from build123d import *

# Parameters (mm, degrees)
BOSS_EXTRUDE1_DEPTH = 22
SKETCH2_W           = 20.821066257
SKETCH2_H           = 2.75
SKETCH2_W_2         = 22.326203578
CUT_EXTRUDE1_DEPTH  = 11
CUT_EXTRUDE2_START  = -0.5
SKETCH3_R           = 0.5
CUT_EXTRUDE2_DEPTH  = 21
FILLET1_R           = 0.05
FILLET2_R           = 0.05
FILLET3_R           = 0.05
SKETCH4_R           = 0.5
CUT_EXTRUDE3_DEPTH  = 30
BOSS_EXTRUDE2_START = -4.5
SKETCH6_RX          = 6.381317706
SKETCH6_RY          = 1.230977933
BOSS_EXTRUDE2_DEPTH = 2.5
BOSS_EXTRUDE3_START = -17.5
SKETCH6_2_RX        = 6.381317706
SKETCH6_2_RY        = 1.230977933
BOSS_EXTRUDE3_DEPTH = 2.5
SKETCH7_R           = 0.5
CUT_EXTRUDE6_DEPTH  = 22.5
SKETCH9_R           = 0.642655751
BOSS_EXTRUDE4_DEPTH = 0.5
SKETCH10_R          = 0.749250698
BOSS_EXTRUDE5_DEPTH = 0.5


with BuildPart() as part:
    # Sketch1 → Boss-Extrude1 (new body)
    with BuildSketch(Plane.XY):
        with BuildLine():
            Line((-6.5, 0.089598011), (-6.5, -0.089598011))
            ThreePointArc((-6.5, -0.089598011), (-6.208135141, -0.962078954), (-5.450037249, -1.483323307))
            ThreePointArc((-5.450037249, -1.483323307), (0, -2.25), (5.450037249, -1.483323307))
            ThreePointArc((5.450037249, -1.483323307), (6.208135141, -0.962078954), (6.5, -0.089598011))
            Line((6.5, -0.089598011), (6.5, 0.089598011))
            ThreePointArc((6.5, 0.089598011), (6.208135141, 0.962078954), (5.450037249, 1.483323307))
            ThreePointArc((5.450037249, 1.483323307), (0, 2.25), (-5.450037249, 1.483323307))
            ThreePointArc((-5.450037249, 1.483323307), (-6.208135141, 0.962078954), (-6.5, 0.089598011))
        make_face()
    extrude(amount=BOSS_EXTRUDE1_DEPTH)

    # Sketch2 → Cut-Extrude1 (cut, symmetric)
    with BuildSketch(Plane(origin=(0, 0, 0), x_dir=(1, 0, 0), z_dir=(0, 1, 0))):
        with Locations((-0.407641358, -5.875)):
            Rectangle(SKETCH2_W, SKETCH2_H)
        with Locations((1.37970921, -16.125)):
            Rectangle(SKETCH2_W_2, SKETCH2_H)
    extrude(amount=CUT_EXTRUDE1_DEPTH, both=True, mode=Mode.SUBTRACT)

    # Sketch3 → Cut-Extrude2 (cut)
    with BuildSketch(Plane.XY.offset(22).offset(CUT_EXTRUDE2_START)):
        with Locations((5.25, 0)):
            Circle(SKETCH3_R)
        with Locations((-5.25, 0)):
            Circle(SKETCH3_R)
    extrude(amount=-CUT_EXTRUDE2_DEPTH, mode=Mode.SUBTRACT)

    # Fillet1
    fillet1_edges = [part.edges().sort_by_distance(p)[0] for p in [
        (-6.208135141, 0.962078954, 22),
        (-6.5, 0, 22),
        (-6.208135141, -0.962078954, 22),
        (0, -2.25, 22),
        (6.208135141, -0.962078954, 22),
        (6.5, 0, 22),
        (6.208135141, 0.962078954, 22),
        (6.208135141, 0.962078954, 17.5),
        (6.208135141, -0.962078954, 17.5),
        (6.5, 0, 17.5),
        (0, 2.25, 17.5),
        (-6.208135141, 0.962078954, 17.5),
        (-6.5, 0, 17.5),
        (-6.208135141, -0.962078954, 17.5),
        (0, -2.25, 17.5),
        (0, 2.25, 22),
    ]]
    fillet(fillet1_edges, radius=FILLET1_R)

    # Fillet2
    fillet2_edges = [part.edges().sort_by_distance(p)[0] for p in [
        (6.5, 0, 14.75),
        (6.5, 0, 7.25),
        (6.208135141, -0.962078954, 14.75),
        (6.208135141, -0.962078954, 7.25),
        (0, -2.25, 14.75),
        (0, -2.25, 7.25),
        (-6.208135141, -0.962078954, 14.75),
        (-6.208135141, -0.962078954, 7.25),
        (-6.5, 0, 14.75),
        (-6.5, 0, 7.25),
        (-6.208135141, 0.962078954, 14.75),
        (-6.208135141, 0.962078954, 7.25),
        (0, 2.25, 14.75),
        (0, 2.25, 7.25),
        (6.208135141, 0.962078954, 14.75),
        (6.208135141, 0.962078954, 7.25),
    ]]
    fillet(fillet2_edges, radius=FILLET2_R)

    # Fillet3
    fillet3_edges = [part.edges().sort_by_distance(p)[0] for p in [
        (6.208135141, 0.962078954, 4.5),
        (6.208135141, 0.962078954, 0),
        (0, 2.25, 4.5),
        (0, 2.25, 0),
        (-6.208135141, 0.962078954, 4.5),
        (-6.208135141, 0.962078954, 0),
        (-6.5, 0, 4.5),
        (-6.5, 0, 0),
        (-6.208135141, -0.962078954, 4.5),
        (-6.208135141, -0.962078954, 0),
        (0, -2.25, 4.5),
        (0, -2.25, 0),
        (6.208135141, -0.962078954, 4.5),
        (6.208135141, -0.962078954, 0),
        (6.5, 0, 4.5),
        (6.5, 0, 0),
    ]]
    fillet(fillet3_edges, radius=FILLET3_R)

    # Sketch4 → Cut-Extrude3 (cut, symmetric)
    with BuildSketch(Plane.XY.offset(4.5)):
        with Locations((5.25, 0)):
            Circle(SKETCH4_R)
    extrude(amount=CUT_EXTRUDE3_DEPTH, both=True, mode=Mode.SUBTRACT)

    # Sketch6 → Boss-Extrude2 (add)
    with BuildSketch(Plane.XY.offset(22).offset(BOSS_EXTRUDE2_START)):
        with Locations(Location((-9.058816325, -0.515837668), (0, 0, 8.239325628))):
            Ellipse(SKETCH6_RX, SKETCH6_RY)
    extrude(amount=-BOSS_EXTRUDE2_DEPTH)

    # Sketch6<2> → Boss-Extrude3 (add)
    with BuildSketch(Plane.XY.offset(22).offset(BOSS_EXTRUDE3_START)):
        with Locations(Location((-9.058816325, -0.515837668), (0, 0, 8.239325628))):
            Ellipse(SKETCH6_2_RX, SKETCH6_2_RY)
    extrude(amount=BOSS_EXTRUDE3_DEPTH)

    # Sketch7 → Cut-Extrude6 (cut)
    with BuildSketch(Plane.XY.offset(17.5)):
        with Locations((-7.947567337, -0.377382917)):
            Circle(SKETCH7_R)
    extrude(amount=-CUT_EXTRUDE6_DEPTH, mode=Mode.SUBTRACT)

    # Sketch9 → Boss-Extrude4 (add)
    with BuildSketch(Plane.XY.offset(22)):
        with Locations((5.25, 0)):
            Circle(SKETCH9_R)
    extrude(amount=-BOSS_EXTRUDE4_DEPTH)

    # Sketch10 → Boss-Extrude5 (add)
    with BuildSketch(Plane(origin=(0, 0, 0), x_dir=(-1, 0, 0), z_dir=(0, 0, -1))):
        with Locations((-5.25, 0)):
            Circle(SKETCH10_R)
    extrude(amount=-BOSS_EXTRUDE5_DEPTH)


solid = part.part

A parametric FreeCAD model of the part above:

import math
import FreeCAD as App
import Part
import Sketcher

V = App.Vector
Q = App.Units.Quantity


def edges_at(feature, points):
    """Names of the edges that pass closest to the given points."""
    edges = feature.Shape.Edges
    near = lambda p: min(range(len(edges)), key=lambda i: edges[i].distToShape(Part.Vertex(*p))[0])
    return sorted({f"Edge{near(p) + 1}" for p in points})

doc = App.newDocument("Part")
body = doc.addObject("PartDesign::Body", "Body")
body.AllowCompound = True

# Sketch on XY plane
sketch1 = doc.addObject("Sketcher::SketchObject", "Sketch")
body.addObject(sketch1)
sketch1.AttachmentSupport = (doc.XY_Plane, [""])
sketch1.MapMode = "FlatFace"
sketch1.addGeometry([
    Part.LineSegment(V(-6.5, 0.089598, 0), V(-6.5, -0.089598, 0)),  # 0
    Part.ArcOfCircle(Part.Circle(V(-5.05, -0.089598, 0), V(0, 0, 1), 1.45), math.radians(180), math.radians(253.985074)),  # 1
    Part.ArcOfCircle(Part.Circle(V(0, 17.504545, 0), V(0, 0, 1), 19.754545), math.radians(-106.014926), math.radians(-73.985074)),  # 2
    Part.ArcOfCircle(Part.Circle(V(5.05, -0.089598, 0), V(0, 0, 1), 1.45), math.radians(-73.985074), math.radians(0)),  # 3
    Part.LineSegment(V(6.5, -0.089598, 0), V(6.5, 0.089598, 0)),  # 4
    Part.ArcOfCircle(Part.Circle(V(5.05, 0.089598, 0), V(0, 0, 1), 1.45), math.radians(0), math.radians(73.985074)),  # 5
    Part.ArcOfCircle(Part.Circle(V(0, -17.504545, 0), V(0, 0, 1), 19.754545), math.radians(73.985074), math.radians(106.014926)),  # 6
    Part.ArcOfCircle(Part.Circle(V(-5.05, 0.089598, 0), V(0, 0, 1), 1.45), math.radians(106.014926), math.radians(180)),  # 7
], False)
sketch1.addConstraint([
    Sketcher.Constraint("Tangent", 0, 2, 1, 1),
    Sketcher.Constraint("Tangent", 1, 2, 2, 1),
    Sketcher.Constraint("Tangent", 2, 2, 3, 1),
    Sketcher.Constraint("Tangent", 3, 2, 4, 1),
    Sketcher.Constraint("Tangent", 4, 2, 5, 1),
    Sketcher.Constraint("Tangent", 5, 2, 6, 1),
    Sketcher.Constraint("Tangent", 6, 2, 7, 1),
    Sketcher.Constraint("Tangent", 7, 2, 0, 1),
    Sketcher.Constraint("Vertical", 0),
    Sketcher.Constraint("Vertical", 4),
    Sketcher.Constraint("Equal", 1, 3),
    Sketcher.Constraint("Equal", 3, 5),
    Sketcher.Constraint("Equal", 2, 6),
    Sketcher.Constraint("Equal", 5, 7),
    Sketcher.Constraint("Symmetric", 1, 3, 5, 3, -1, 1),
    Sketcher.Constraint("Symmetric", 2, 3, 6, 3, -1),
    Sketcher.Constraint("Radius", 1, Q("1.45 mm")),
    Sketcher.Constraint("DistanceX", 0, 2, -1, 1, Q("6.5 mm")),
    Sketcher.Constraint("Radius", 2, Q("19.754545 mm")),
    Sketcher.Constraint("DistanceY", 1, 3, -1, 1, Q("0.089598 mm")),
])
pad1 = doc.addObject("PartDesign::Pad", "Pad")
body.addObject(pad1)
pad1.Profile = sketch1
pad1.Length = 22

# Sketch on XZ plane
sketch2 = doc.addObject("Sketcher::SketchObject", "Sketch001")
body.addObject(sketch2)
sketch2.AttachmentSupport = (doc.XZ_Plane, [""])
sketch2.MapMode = "FlatFace"
sketch2.addGeometry([
    Part.LineSegment(V(-10.818174, 4.5, 0), V(-10.818174, 7.25, 0)),  # 0
    Part.LineSegment(V(-10.818174, 7.25, 0), V(10.002892, 7.25, 0)),  # 1
    Part.LineSegment(V(10.002892, 7.25, 0), V(10.002892, 4.5, 0)),  # 2
    Part.LineSegment(V(10.002892, 4.5, 0), V(-10.818174, 4.5, 0)),  # 3
    Part.LineSegment(V(-9.783393, 14.75, 0), V(-9.783393, 17.5, 0)),  # 4
    Part.LineSegment(V(-9.783393, 17.5, 0), V(12.542811, 17.5, 0)),  # 5
    Part.LineSegment(V(12.542811, 17.5, 0), V(12.542811, 14.75, 0)),  # 6
    Part.LineSegment(V(12.542811, 14.75, 0), V(-9.783393, 14.75, 0)),  # 7
], False)
sketch2.addConstraint([
    Sketcher.Constraint("Coincident", 0, 2, 1, 1),
    Sketcher.Constraint("Coincident", 1, 2, 2, 1),
    Sketcher.Constraint("Coincident", 2, 2, 3, 1),
    Sketcher.Constraint("Coincident", 3, 2, 0, 1),
    Sketcher.Constraint("Coincident", 4, 2, 5, 1),
    Sketcher.Constraint("Coincident", 5, 2, 6, 1),
    Sketcher.Constraint("Coincident", 6, 2, 7, 1),
    Sketcher.Constraint("Coincident", 7, 2, 4, 1),
    Sketcher.Constraint("Vertical", 0),
    Sketcher.Constraint("Horizontal", 1),
    Sketcher.Constraint("Vertical", 2),
    Sketcher.Constraint("Horizontal", 3),
    Sketcher.Constraint("Vertical", 4),
    Sketcher.Constraint("Horizontal", 5),
    Sketcher.Constraint("Vertical", 6),
    Sketcher.Constraint("Horizontal", 7),
    Sketcher.Constraint("Equal", 2, 4),
    Sketcher.Constraint("DistanceY", 3, 2, 4, 2, Q("13 mm")),
    Sketcher.Constraint("DistanceY", 0, 1, 0, 2, Q("2.75 mm")),
    Sketcher.Constraint("DistanceY", -1, 1, 2, 2, Q("4.5 mm")),
    Sketcher.Constraint("DistanceX", 1, 1, 1, 2, Q("20.821066 mm")),
    Sketcher.Constraint("DistanceX", 5, 1, 5, 2, Q("22.326204 mm")),
    Sketcher.Constraint("DistanceX", -1, 1, 1, 2, Q("10.002892 mm")),
    Sketcher.Constraint("DistanceX", -1, 1, 5, 2, Q("12.542811 mm")),
])
pocket1 = doc.addObject("PartDesign::Pocket", "Pocket")
body.addObject(pocket1)
pocket1.Profile = sketch2
pocket1.Length = 22
pocket1.Midplane = True

# Sketch on XY plane
sketch3 = doc.addObject("Sketcher::SketchObject", "Sketch002")
body.addObject(sketch3)
sketch3.AttachmentSupport = (doc.XY_Plane, [""])
sketch3.MapMode = "FlatFace"
sketch3.AttachmentOffset = App.Placement(V(0, 0, 21.5), App.Rotation())
sketch3.addGeometry([
    Part.Circle(V(5.25, 0, 0), V(0, 0, 1), 0.5),
    Part.Circle(V(-5.25, 0, 0), V(0, 0, 1), 0.5),
], False)
sketch3.addConstraint([
    Sketcher.Constraint("Equal", 0, 1),
    Sketcher.Constraint("Symmetric", 0, 3, 1, 3, -1, 1),
    Sketcher.Constraint("PointOnObject", 0, 3, -1),
    Sketcher.Constraint("Diameter", 0, Q("1 mm")),
    Sketcher.Constraint("DistanceX", 1, 3, 0, 3, Q("10.5 mm")),
])
pocket2 = doc.addObject("PartDesign::Pocket", "Pocket001")
body.addObject(pocket2)
pocket2.Profile = sketch3
pocket2.Length = 21
doc.recompute()

fillet = doc.addObject("PartDesign::Fillet", "Fillet")
body.addObject(fillet)
fillet.Base = (pocket2, edges_at(pocket2, [
    (-6.208, 0.962, 22),
    (-6.5, 0, 22),
    (-6.208, -0.962, 22),
    (0, -2.25, 22),
    (6.208, -0.962, 22),
    (6.5, 0, 22),
    (6.208, 0.962, 22),
    (6.208, 0.962, 17.5),
    (6.208, -0.962, 17.5),
    (6.5, 0, 17.5),
    (0, 2.25, 17.5),
    (-6.208, 0.962, 17.5),
    (-6.5, 0, 17.5),
    (-6.208, -0.962, 17.5),
    (0, -2.25, 17.5),
    (0, 2.25, 22),
]))
fillet.Radius = 0.05
doc.recompute()

fillet2 = doc.addObject("PartDesign::Fillet", "Fillet001")
body.addObject(fillet2)
fillet2.Base = (fillet, edges_at(fillet, [
    (6.5, 0, 14.75),
    (6.5, 0, 7.25),
    (6.208, -0.962, 14.75),
    (6.208, -0.962, 7.25),
    (0, -2.25, 14.75),
    (0, -2.25, 7.25),
    (-6.208, -0.962, 14.75),
    (-6.208, -0.962, 7.25),
    (-6.5, 0, 14.75),
    (-6.5, 0, 7.25),
    (-6.208, 0.962, 14.75),
    (-6.208, 0.962, 7.25),
    (0, 2.25, 14.75),
    (0, 2.25, 7.25),
    (6.208, 0.962, 14.75),
    (6.208, 0.962, 7.25),
]))
fillet2.Radius = 0.05
doc.recompute()

fillet3 = doc.addObject("PartDesign::Fillet", "Fillet002")
body.addObject(fillet3)
fillet3.Base = (fillet2, edges_at(fillet2, [
    (6.208, 0.962, 4.5),
    (6.208, 0.962, 0),
    (0, 2.25, 4.5),
    (0, 2.25, 0),
    (-6.208, 0.962, 4.5),
    (-6.208, 0.962, 0),
    (-6.5, 0, 4.5),
    (-6.5, 0, 0),
    (-6.208, -0.962, 4.5),
    (-6.208, -0.962, 0),
    (0, -2.25, 4.5),
    (0, -2.25, 0),
    (6.208, -0.962, 4.5),
    (6.208, -0.962, 0),
    (6.5, 0, 4.5),
    (6.5, 0, 0),
]))
fillet3.Radius = 0.05

# Sketch on XY plane
sketch4 = doc.addObject("Sketcher::SketchObject", "Sketch003")
body.addObject(sketch4)
sketch4.AttachmentSupport = (doc.XY_Plane, [""])
sketch4.MapMode = "FlatFace"
sketch4.AttachmentOffset = App.Placement(V(0, 0, 4.5), App.Rotation())
sketch4.addGeometry(Part.Circle(V(5.25, 0, 0), V(0, 0, 1), 0.5), False)
sketch4.addConstraint([
    Sketcher.Constraint("PointOnObject", 0, 3, -1),
    Sketcher.Constraint("Diameter", 0, Q("1 mm")),
    Sketcher.Constraint("DistanceX", -1, 1, 0, 3, Q("5.25 mm")),
])
pocket3 = doc.addObject("PartDesign::Pocket", "Pocket002")
body.addObject(pocket3)
pocket3.Profile = sketch4
pocket3.Length = 60
pocket3.Midplane = True

# Sketch on XY plane
sketch5 = doc.addObject("Sketcher::SketchObject", "Sketch004")
body.addObject(sketch5)
sketch5.AttachmentSupport = (doc.XY_Plane, [""])
sketch5.MapMode = "FlatFace"
sketch5.AttachmentOffset = App.Placement(V(0, 0, 17.5), App.Rotation())
sketch5.addGeometry(Part.Ellipse(V(-2.743366, 0.398658, 0), V(-9.235226, 0.702434, 0), V(-9.058816, -0.515838, 0)), False)
sketch5.addConstraint(Sketcher.Constraint("Block", 0))
pad2 = doc.addObject("PartDesign::Pad", "Pad001")
body.addObject(pad2)
pad2.Profile = sketch5
pad2.Length = 2.5
pad2.Reversed = True

# Sketch on XY plane
sketch6 = doc.addObject("Sketcher::SketchObject", "Sketch005")
body.addObject(sketch6)
sketch6.AttachmentSupport = (doc.XY_Plane, [""])
sketch6.MapMode = "FlatFace"
sketch6.AttachmentOffset = App.Placement(V(0, 0, 4.5), App.Rotation())
sketch6.addGeometry(Part.Ellipse(V(-2.743366, 0.398658, 0), V(-9.235226, 0.702434, 0), V(-9.058816, -0.515838, 0)), False)
sketch6.addConstraint(Sketcher.Constraint("Block", 0))
pad3 = doc.addObject("PartDesign::Pad", "Pad002")
body.addObject(pad3)
pad3.Profile = sketch6
pad3.Length = 2.5

# Sketch on XY plane
sketch7 = doc.addObject("Sketcher::SketchObject", "Sketch006")
body.addObject(sketch7)
sketch7.AttachmentSupport = (doc.XY_Plane, [""])
sketch7.MapMode = "FlatFace"
sketch7.AttachmentOffset = App.Placement(V(0, 0, 17.5), App.Rotation())
sketch7.addGeometry(Part.Circle(V(-7.947567, -0.377383, 0), V(0, 0, 1), 0.5), False)
sketch7.addConstraint([
    Sketcher.Constraint("Diameter", 0, Q("1 mm")),
    Sketcher.Constraint("DistanceX", 0, 3, -1, 1, Q("7.947567 mm")),
    Sketcher.Constraint("DistanceY", 0, 3, -1, 1, Q("0.377383 mm")),
])
pocket4 = doc.addObject("PartDesign::Pocket", "Pocket003")
body.addObject(pocket4)
pocket4.Profile = sketch7
pocket4.Length = 22.5

# Sketch on XY plane
sketch8 = doc.addObject("Sketcher::SketchObject", "Sketch007")
body.addObject(sketch8)
sketch8.AttachmentSupport = (doc.XY_Plane, [""])
sketch8.MapMode = "FlatFace"
sketch8.AttachmentOffset = App.Placement(V(0, 0, 22), App.Rotation())
sketch8.addGeometry(Part.Circle(V(5.25, 0, 0), V(0, 0, 1), 0.642656), False)
sketch8.addConstraint([
    Sketcher.Constraint("PointOnObject", 0, 3, -1),
    Sketcher.Constraint("Diameter", 0, Q("1.285312 mm")),
    Sketcher.Constraint("DistanceX", -1, 1, 0, 3, Q("5.25 mm")),
])
pad4 = doc.addObject("PartDesign::Pad", "Pad003")
body.addObject(pad4)
pad4.Profile = sketch8
pad4.Length = 0.5
pad4.Reversed = True

# Sketch on XY plane
sketch9 = doc.addObject("Sketcher::SketchObject", "Sketch008")
body.addObject(sketch9)
sketch9.AttachmentSupport = (doc.XY_Plane, [""])
sketch9.MapMode = "FlatFace"
sketch9.addGeometry(Part.Circle(V(5.25, 0, 0), V(0, 0, 1), 0.749251), False)
sketch9.addConstraint([
    Sketcher.Constraint("PointOnObject", 0, 3, -1),
    Sketcher.Constraint("Diameter", 0, Q("1.498501 mm")),
    Sketcher.Constraint("DistanceX", -1, 1, 0, 3, Q("5.25 mm")),
])
pad5 = doc.addObject("PartDesign::Pad", "Pad004")
body.addObject(pad5)
pad5.Profile = sketch9
pad5.Length = 0.5

doc.recompute()
